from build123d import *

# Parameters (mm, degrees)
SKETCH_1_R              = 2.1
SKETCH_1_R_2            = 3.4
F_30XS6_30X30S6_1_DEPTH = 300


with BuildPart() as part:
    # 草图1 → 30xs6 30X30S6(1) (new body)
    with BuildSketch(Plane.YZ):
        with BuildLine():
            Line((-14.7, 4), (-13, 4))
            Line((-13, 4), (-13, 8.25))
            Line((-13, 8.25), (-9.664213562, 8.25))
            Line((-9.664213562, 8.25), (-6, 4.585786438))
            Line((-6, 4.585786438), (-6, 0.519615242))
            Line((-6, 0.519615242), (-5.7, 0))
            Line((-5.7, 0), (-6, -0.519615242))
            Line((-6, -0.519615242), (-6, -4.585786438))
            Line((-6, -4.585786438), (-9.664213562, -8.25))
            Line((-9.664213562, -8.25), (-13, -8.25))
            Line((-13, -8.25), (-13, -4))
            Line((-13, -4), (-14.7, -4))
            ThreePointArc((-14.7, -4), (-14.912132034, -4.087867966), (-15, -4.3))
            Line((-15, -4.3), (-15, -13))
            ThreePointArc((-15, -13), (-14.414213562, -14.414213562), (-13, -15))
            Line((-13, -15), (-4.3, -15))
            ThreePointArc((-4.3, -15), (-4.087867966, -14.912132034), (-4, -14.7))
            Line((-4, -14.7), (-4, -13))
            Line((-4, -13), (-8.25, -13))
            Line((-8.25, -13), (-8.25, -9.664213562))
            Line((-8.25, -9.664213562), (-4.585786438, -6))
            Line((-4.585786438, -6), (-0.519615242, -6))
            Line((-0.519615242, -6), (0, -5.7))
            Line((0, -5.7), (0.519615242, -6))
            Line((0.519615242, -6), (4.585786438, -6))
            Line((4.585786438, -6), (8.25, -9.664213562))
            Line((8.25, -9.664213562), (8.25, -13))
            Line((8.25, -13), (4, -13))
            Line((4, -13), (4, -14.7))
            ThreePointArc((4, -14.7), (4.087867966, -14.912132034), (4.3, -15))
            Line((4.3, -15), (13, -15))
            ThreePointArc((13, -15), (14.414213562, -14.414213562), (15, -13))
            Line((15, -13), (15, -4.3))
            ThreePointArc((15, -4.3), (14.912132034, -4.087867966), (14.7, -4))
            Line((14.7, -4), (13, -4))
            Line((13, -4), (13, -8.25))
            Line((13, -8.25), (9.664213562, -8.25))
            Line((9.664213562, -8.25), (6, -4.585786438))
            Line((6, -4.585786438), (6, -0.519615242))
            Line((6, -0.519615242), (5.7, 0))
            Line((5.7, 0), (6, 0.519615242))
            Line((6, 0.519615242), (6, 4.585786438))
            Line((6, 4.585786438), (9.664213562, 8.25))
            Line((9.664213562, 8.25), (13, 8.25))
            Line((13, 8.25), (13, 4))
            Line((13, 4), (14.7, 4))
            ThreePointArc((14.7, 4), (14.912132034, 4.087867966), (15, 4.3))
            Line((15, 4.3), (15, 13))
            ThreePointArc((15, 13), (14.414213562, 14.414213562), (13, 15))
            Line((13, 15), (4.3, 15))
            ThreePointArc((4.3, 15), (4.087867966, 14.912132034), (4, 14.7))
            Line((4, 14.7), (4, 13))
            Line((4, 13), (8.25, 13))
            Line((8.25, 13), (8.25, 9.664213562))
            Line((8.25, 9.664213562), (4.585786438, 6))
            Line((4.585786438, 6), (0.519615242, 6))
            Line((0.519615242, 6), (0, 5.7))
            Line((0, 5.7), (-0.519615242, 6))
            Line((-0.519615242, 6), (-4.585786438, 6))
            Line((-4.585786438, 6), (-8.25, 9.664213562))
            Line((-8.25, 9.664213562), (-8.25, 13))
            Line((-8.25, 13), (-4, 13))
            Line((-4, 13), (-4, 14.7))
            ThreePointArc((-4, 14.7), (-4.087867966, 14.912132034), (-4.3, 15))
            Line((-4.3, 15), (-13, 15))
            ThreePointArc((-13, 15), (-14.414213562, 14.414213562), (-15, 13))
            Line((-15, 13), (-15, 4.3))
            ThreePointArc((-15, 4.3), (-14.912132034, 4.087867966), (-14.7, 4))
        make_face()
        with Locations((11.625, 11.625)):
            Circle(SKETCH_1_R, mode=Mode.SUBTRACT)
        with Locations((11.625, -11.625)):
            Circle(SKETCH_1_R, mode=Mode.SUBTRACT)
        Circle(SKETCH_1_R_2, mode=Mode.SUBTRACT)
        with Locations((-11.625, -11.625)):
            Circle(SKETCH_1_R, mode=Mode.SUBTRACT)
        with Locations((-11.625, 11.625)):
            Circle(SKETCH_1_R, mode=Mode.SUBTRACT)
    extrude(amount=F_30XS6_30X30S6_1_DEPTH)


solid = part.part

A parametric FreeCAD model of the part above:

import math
import FreeCAD as App
import Part
import Sketcher
Q = App.Units.Quantity

doc = App.newDocument("Part")
body = doc.addObject("PartDesign::Body", "Body")

# Sketch on YZ plane
sketch1 = body.newObject("Sketcher::SketchObject", "Sketch")
sketch1.AttachmentSupport = (doc.getObject("YZ_Plane"), [""])
sketch1.MapMode = "FlatFace"
sketch1.addGeometry([
    Part.LineSegment(App.Vector(-14.7, 4, 0), App.Vector(-13, 4, 0)),  # 0
    Part.LineSegment(App.Vector(-13, 4, 0), App.Vector(-13, 8.25, 0)),  # 1
    Part.LineSegment(App.Vector(-13, 8.25, 0), App.Vector(-9.664214, 8.25, 0)),  # 2
    Part.LineSegment(App.Vector(-9.664214, 8.25, 0), App.Vector(-6, 4.585786, 0)),  # 3
    Part.LineSegment(App.Vector(-6, 4.585786, 0), App.Vector(-6, 0.519615, 0)),  # 4
    Part.LineSegment(App.Vector(-6, 0.519615, 0), App.Vector(-5.7, 0, 0)),  # 5
    Part.LineSegment(App.Vector(-5.7, 0, 0), App.Vector(-6, -0.519615, 0)),  # 6
    Part.LineSegment(App.Vector(-6, -0.519615, 0), App.Vector(-6, -4.585786, 0)),  # 7
    Part.LineSegment(App.Vector(-6, -4.585786, 0), App.Vector(-9.664214, -8.25, 0)),  # 8
    Part.LineSegment(App.Vector(-9.664214, -8.25, 0), App.Vector(-13, -8.25, 0)),  # 9
    Part.LineSegment(App.Vector(-13, -8.25, 0), App.Vector(-13, -4, 0)),  # 10
    Part.LineSegment(App.Vector(-13, -4, 0), App.Vector(-14.7, -4, 0)),  # 11
    Part.ArcOfCircle(Part.Circle(App.Vector(-14.7, -4.3, 0), App.Vector(0, 0, 1), 0.3), math.radians(90), math.radians(180)),  # 12
    Part.LineSegment(App.Vector(-15, -4.3, 0), App.Vector(-15, -13, 0)),  # 13
    Part.ArcOfCircle(Part.Circle(App.Vector(-13, -13, 0), App.Vector(0, 0, 1), 2), math.radians(-180), math.radians(-90)),  # 14
    Part.LineSegment(App.Vector(-13, -15, 0), App.Vector(-4.3, -15, 0)),  # 15
    Part.ArcOfCircle(Part.Circle(App.Vector(-4.3, -14.7, 0), App.Vector(0, 0, 1), 0.3), math.radians(-90), math.radians(0)),  # 16
    Part.LineSegment(App.Vector(-4, -14.7, 0), App.Vector(-4, -13, 0)),  # 17
    Part.LineSegment(App.Vector(-4, -13, 0), App.Vector(-8.25, -13, 0)),  # 18
    Part.LineSegment(App.Vector(-8.25, -13, 0), App.Vector(-8.25, -9.664214, 0)),  # 19
    Part.LineSegment(App.Vector(-8.25, -9.664214, 0), App.Vector(-4.585786, -6, 0)),  # 20
    Part.LineSegment(App.Vector(-4.585786, -6, 0), App.Vector(-0.519615, -6, 0)),  # 21
    Part.LineSegment(App.Vector(-0.519615, -6, 0), App.Vector(0, -5.7, 0)),  # 22
    Part.LineSegment(App.Vector(0, -5.7, 0), App.Vector(0.519615, -6, 0)),  # 23
    Part.LineSegment(App.Vector(0.519615, -6, 0), App.Vector(4.585786, -6, 0)),  # 24
    Part.LineSegment(App.Vector(4.585786, -6, 0), App.Vector(8.25, -9.664214, 0)),  # 25
    Part.LineSegment(App.Vector(8.25, -9.664214, 0), App.Vector(8.25, -13, 0)),  # 26
    Part.LineSegment(App.Vector(8.25, -13, 0), App.Vector(4, -13, 0)),  # 27
    Part.LineSegment(App.Vector(4, -13, 0), App.Vector(4, -14.7, 0)),  # 28
    Part.ArcOfCircle(Part.Circle(App.Vector(4.3, -14.7, 0), App.Vector(0, 0, 1), 0.3), math.radians(-180), math.radians(-90)),  # 29
    Part.LineSegment(App.Vector(4.3, -15, 0), App.Vector(13, -15, 0)),  # 30
    Part.ArcOfCircle(Part.Circle(App.Vector(13, -13, 0), App.Vector(0, 0, 1), 2), math.radians(-90), math.radians(0)),  # 31
    Part.LineSegment(App.Vector(15, -13, 0), App.Vector(15, -4.3, 0)),  # 32
    Part.ArcOfCircle(Part.Circle(App.Vector(14.7, -4.3, 0), App.Vector(0, 0, 1), 0.3), math.radians(0), math.radians(90)),  # 33
    Part.LineSegment(App.Vector(14.7, -4, 0), App.Vector(13, -4, 0)),  # 34
    Part.LineSegment(App.Vector(13, -4, 0), App.Vector(13, -8.25, 0)),  # 35
    Part.LineSegment(App.Vector(13, -8.25, 0), App.Vector(9.664214, -8.25, 0)),  # 36
    Part.LineSegment(App.Vector(9.664214, -8.25, 0), App.Vector(6, -4.585786, 0)),  # 37
    Part.LineSegment(App.Vector(6, -4.585786, 0), App.Vector(6, -0.519615, 0)),  # 38
    Part.LineSegment(App.Vector(6, -0.519615, 0), App.Vector(5.7, 0, 0)),  # 39
    Part.LineSegment(App.Vector(5.7, 0, 0), App.Vector(6, 0.519615, 0)),  # 40
    Part.LineSegment(App.Vector(6, 0.519615, 0), App.Vector(6, 4.585786, 0)),  # 41
    Part.LineSegment(App.Vector(6, 4.585786, 0), App.Vector(9.664214, 8.25, 0)),  # 42
    Part.LineSegment(App.Vector(9.664214, 8.25, 0), App.Vector(13, 8.25, 0)),  # 43
    Part.LineSegment(App.Vector(13, 8.25, 0), App.Vector(13, 4, 0)),  # 44
    Part.LineSegment(App.Vector(13, 4, 0), App.Vector(14.7, 4, 0)),  # 45
    Part.ArcOfCircle(Part.Circle(App.Vector(14.7, 4.3, 0), App.Vector(0, 0, 1), 0.3), math.radians(-90), math.radians(0)),  # 46
    Part.LineSegment(App.Vector(15, 4.3, 0), App.Vector(15, 13, 0)),  # 47
    Part.ArcOfCircle(Part.Circle(App.Vector(13, 13, 0), App.Vector(0, 0, 1), 2), math.radians(0), math.radians(90)),  # 48
    Part.LineSegment(App.Vector(13, 15, 0), App.Vector(4.3, 15, 0)),  # 49
    Part.ArcOfCircle(Part.Circle(App.Vector(4.3, 14.7, 0), App.Vector(0, 0, 1), 0.3), math.radians(90), math.radians(180)),  # 50
    Part.LineSegment(App.Vector(4, 14.7, 0), App.Vector(4, 13, 0)),  # 51
    Part.LineSegment(App.Vector(4, 13, 0), App.Vector(8.25, 13, 0)),  # 52
    Part.LineSegment(App.Vector(8.25, 13, 0), App.Vector(8.25, 9.664214, 0)),  # 53
    Part.LineSegment(App.Vector(8.25, 9.664214, 0), App.Vector(4.585786, 6, 0)),  # 54
    Part.LineSegment(App.Vector(4.585786, 6, 0), App.Vector(0.519615, 6, 0)),  # 55
    Part.LineSegment(App.Vector(0.519615, 6, 0), App.Vector(0, 5.7, 0)),  # 56
    Part.LineSegment(App.Vector(0, 5.7, 0), App.Vector(-0.519615, 6, 0)),  # 57
    Part.LineSegment(App.Vector(-0.519615, 6, 0), App.Vector(-4.585786, 6, 0)),  # 58
    Part.LineSegment(App.Vector(-4.585786, 6, 0), App.Vector(-8.25, 9.664214, 0)),  # 59
    Part.LineSegment(App.Vector(-8.25, 9.664214, 0), App.Vector(-8.25, 13, 0)),  # 60
    Part.LineSegment(App.Vector(-8.25, 13, 0), App.Vector(-4, 13, 0)),  # 61
    Part.LineSegment(App.Vector(-4, 13, 0), App.Vector(-4, 14.7, 0)),  # 62
    Part.ArcOfCircle(Part.Circle(App.Vector(-4.3, 14.7, 0), App.Vector(0, 0, 1), 0.3), math.radians(0), math.radians(90)),  # 63
    Part.LineSegment(App.Vector(-4.3, 15, 0), App.Vector(-13, 15, 0)),  # 64
    Part.ArcOfCircle(Part.Circle(App.Vector(-13, 13, 0), App.Vector(0, 0, 1), 2), math.radians(90), math.radians(180)),  # 65
    Part.LineSegment(App.Vector(-15, 13, 0), App.Vector(-15, 4.3, 0)),  # 66
    Part.ArcOfCircle(Part.Circle(App.Vector(-14.7, 4.3, 0), App.Vector(0, 0, 1), 0.3), math.radians(-180), math.radians(-90)),  # 67
    Part.Circle(App.Vector(-11.625, -11.625, 0), App.Vector(0, 0, 1), 2.1),  # 68
    Part.Circle(App.Vector(11.625, -11.625, 0), App.Vector(0, 0, 1), 2.1),  # 69
    Part.Circle(App.Vector(-11.625, 11.625, 0), App.Vector(0, 0, 1), 2.1),  # 70
    Part.Circle(App.Vector(0, 0, 0), App.Vector(0, 0, 1), 3.4),  # 71
    Part.Circle(App.Vector(11.625, 11.625, 0), App.Vector(0, 0, 1), 2.1),  # 72
], False)
sketch1.addConstraint([
    Sketcher.Constraint("Coincident", 0, 2, 1, 1),
    Sketcher.Constraint("Coincident", 1, 2, 2, 1),
    Sketcher.Constraint("Coincident", 2, 2, 3, 1),
    Sketcher.Constraint("Coincident", 3, 2, 4, 1),
    Sketcher.Constraint("Coincident", 4, 2, 5, 1),
    Sketcher.Constraint("Coincident", 5, 2, 6, 1),
    Sketcher.Constraint("Coincident", 6, 2, 7, 1),
    Sketcher.Constraint("Coincident", 7, 2, 8, 1),
    Sketcher.Constraint("Coincident", 8, 2, 9, 1),
    Sketcher.Constraint("Coincident", 9, 2, 10, 1),
    Sketcher.Constraint("Coincident", 10, 2, 11, 1),
    Sketcher.Constraint("Tangent", 11, 2, 12, 1),
    Sketcher.Constraint("Tangent", 12, 2, 13, 1),
    Sketcher.Constraint("Tangent", 13, 2, 14, 1),
    Sketcher.Constraint("Tangent", 14, 2, 15, 1),
    Sketcher.Constraint("Tangent", 15, 2, 16, 1),
    Sketcher.Constraint("Tangent", 16, 2, 17, 1),
    Sketcher.Constraint("Coincident", 17, 2, 18, 1),
    Sketcher.Constraint("Coincident", 18, 2, 19, 1),
    Sketcher.Constraint("Coincident", 19, 2, 20, 1),
    Sketcher.Constraint("Coincident", 20, 2, 21, 1),
    Sketcher.Constraint("Coincident", 21, 2, 22, 1),
    Sketcher.Constraint("Coincident", 22, 2, 23, 1),
    Sketcher.Constraint("Coincident", 23, 2, 24, 1),
    Sketcher.Constraint("Coincident", 24, 2, 25, 1),
    Sketcher.Constraint("Coincident", 25, 2, 26, 1),
    Sketcher.Constraint("Coincident", 26, 2, 27, 1),
    Sketcher.Constraint("Coincident", 27, 2, 28, 1),
    Sketcher.Constraint("Tangent", 28, 2, 29, 1),
    Sketcher.Constraint("Tangent", 29, 2, 30, 1),
    Sketcher.Constraint("Tangent", 30, 2, 31, 1),
    Sketcher.Constraint("Tangent", 31, 2, 32, 1),
    Sketcher.Constraint("Tangent", 32, 2, 33, 1),
    Sketcher.Constraint("Tangent", 33, 2, 34, 1),
    Sketcher.Constraint("Coincident", 34, 2, 35, 1),
    Sketcher.Constraint("Coincident", 35, 2, 36, 1),
    Sketcher.Constraint("Coincident", 36, 2, 37, 1),
    Sketcher.Constraint("Coincident", 37, 2, 38, 1),
    Sketcher.Constraint("Coincident", 38, 2, 39, 1),
    Sketcher.Constraint("Coincident", 39, 2, 40, 1),
    Sketcher.Constraint("Coincident", 40, 2, 41, 1),
    Sketcher.Constraint("Coincident", 41, 2, 42, 1),
    Sketcher.Constraint("Coincident", 42, 2, 43, 1),
    Sketcher.Constraint("Coincident", 43, 2, 44, 1),
    Sketcher.Constraint("Coincident", 44, 2, 45, 1),
    Sketcher.Constraint("Tangent", 45, 2, 46, 1),
    Sketcher.Constraint("Tangent", 46, 2, 47, 1),
    Sketcher.Constraint("Tangent", 47, 2, 48, 1),
    Sketcher.Constraint("Tangent", 48, 2, 49, 1),
    Sketcher.Constraint("Tangent", 49, 2, 50, 1),
    Sketcher.Constraint("Tangent", 50, 2, 51, 1),
    Sketcher.Constraint("Coincident", 51, 2, 52, 1),
    Sketcher.Constraint("Coincident", 52, 2, 53, 1),
    Sketcher.Constraint("Coincident", 53, 2, 54, 1),
    Sketcher.Constraint("Coincident", 54, 2, 55, 1),
    Sketcher.Constraint("Coincident", 55, 2, 56, 1),
    Sketcher.Constraint("Coincident", 56, 2, 57, 1),
    Sketcher.Constraint("Coincident", 57, 2, 58, 1),
    Sketcher.Constraint("Coincident", 58, 2, 59, 1),
    Sketcher.Constraint("Coincident", 59, 2, 60, 1),
    Sketcher.Constraint("Coincident", 60, 2, 61, 1),
    Sketcher.Constraint("Coincident", 61, 2, 62, 1),
    Sketcher.Constraint("Tangent", 62, 2, 63, 1),
    Sketcher.Constraint("Tangent", 63, 2, 64, 1),
    Sketcher.Constraint("Tangent", 64, 2, 65, 1),
    Sketcher.Constraint("Tangent", 65, 2, 66, 1),
    Sketcher.Constraint("Tangent", 66, 2, 67, 1),
    Sketcher.Constraint("Tangent", 67, 2, 0, 1),
    Sketcher.Constraint("Horizontal", 0),
    Sketcher.Constraint("Vertical", 1),
    Sketcher.Constraint("Horizontal", 2),
    Sketcher.Constraint("Vertical", 4),
    Sketcher.Constraint("Vertical", 7),
    Sketcher.Constraint("Horizontal", 9),
    Sketcher.Constraint("Vertical", 10),
    Sketcher.Constraint("Horizontal", 11),
    Sketcher.Constraint("Vertical", 13),
    Sketcher.Constraint("Horizontal", 15),
    Sketcher.Constraint("Vertical", 17),
    Sketcher.Constraint("Horizontal", 18),
    Sketcher.Constraint("Vertical", 19),
    Sketcher.Constraint("Horizontal", 21),
    Sketcher.Constraint("Horizontal", 24),
    Sketcher.Constraint("Vertical", 26),
    Sketcher.Constraint("Horizontal", 27),
    Sketcher.Constraint("Vertical", 28),
    Sketcher.Constraint("Horizontal", 30),
    Sketcher.Constraint("Vertical", 32),
    Sketcher.Constraint("Horizontal", 34),
    Sketcher.Constraint("Vertical", 35),
    Sketcher.Constraint("Horizontal", 36),
    Sketcher.Constraint("Vertical", 38),
    Sketcher.Constraint("Vertical", 41),
    Sketcher.Constraint("Horizontal", 43),
    Sketcher.Constraint("Vertical", 44),
    Sketcher.Constraint("Horizontal", 45),
    Sketcher.Constraint("Vertical", 47),
    Sketcher.Constraint("Horizontal", 49),
    Sketcher.Constraint("Vertical", 51),
    Sketcher.Constraint("Horizontal", 52),
    Sketcher.Constraint("Vertical", 53),
    Sketcher.Constraint("Horizontal", 55),
    Sketcher.Constraint("Horizontal", 58),
    Sketcher.Constraint("Vertical", 60),
    Sketcher.Constraint("Horizontal", 61),
    Sketcher.Constraint("Vertical", 62),
    Sketcher.Constraint("Horizontal", 64),
    Sketcher.Constraint("Vertical", 66),
    Sketcher.Constraint("Coincident", 71, 3, -1, 1),
    Sketcher.Constraint("Equal", 12, 16),
    Sketcher.Constraint("Equal", 16, 29),
    Sketcher.Constraint("Equal", 14, 31),
    Sketcher.Constraint("Equal", 29, 33),
    Sketcher.Constraint("Equal", 33, 46),
    Sketcher.Constraint("Equal", 31, 48),
    Sketcher.Constraint("Equal", 46, 50),
    Sketcher.Constraint("Equal", 50, 63),
    Sketcher.Constraint("Equal", 48, 65),
    Sketcher.Constraint("Equal", 63, 67),
    Sketcher.Constraint("Equal", 68, 69),
    Sketcher.Constraint("Equal", 69, 70),
    Sketcher.Constraint("Equal", 70, 72),
    Sketcher.Constraint("Symmetric", 12, 3, 46, 3, -1, 1),
    Sketcher.Constraint("Symmetric", 16, 3, 50, 3, -1, 1),
    Sketcher.Constraint("Symmetric", 29, 3, 63, 3, -1, 1),
    Sketcher.Constraint("Symmetric", 33, 3, 67, 3, -1, 1),
    Sketcher.Constraint("Symmetric", 69, 3, 70, 3, -1, 1),
    Sketcher.Constraint("Symmetric", 68, 3, 72, 3, -1, 1),
    Sketcher.Constraint("Symmetric", 1, 2, 35, 2, -1, 1),
    Sketcher.Constraint("Symmetric", 3, 2, 37, 2, -1, 1),
    Sketcher.Constraint("Symmetric", 5, 2, 39, 2, -1, 1),
    Sketcher.Constraint("Symmetric", 6, 2, 40, 2, -1, 1),
    Sketcher.Constraint("Symmetric", 8, 2, 42, 2, -1, 1),
    Sketcher.Constraint("Symmetric", 18, 2, 52, 2, -1, 1),
    Sketcher.Constraint("Symmetric", 20, 2, 54, 2, -1, 1),
    Sketcher.Constraint("Symmetric", 22, 2, 56, 2, -1, 1),
    Sketcher.Constraint("Symmetric", 23, 2, 57, 2, -1, 1),
    Sketcher.Constraint("Symmetric", 25, 2, 59, 2, -1, 1),
    Sketcher.Constraint("Symmetric", 16, 3, 29, 3, -2),
    Sketcher.Constraint("Symmetric", 12, 3, 33, 3, -2),
    Sketcher.Constraint("Symmetric", 68, 3, 69, 3, -2),
    Sketcher.Constraint("Symmetric", 21, 2, 23, 2, -2),
    Sketcher.Constraint("Symmetric", 19, 2, 25, 2, -2),
    Sketcher.Constraint("Symmetric", 9, 2, 35, 2, -2),
    Sketcher.Constraint("Symmetric", 7, 2, 37, 2, -2),
    Sketcher.Constraint("PointOnObject", 5, 2, -1),
    Sketcher.Constraint("PointOnObject", 22, 2, -2),
    Sketcher.Constraint("Perpendicular", 3, 8),
    Sketcher.Constraint("Parallel", 8, 20),
    Sketcher.Constraint("Perpendicular", 5, 22),
    Sketcher.Constraint("Perpendicular", 6, 23),
    Sketcher.Constraint("Perpendicular", 20, 25),
    Sketcher.Constraint("Parallel", 25, 37),
    Sketcher.Constraint("Perpendicular", 22, 39),
    Sketcher.Constraint("Perpendicular", 37, 42),
    Sketcher.Constraint("Parallel", 42, 54),
    Sketcher.Constraint("Perpendicular", 39, 56),
    Sketcher.Constraint("Perpendicular", 54, 59),
    Sketcher.Constraint("Horizontal", 13, 2, 17, 2),
    Sketcher.Constraint("Horizontal", 18, 2, 26, 2),
    Sketcher.Constraint("Horizontal", 52, 2, 60, 2),
    Sketcher.Constraint("Vertical", 65, 3, 0, 2),
    Sketcher.Constraint("Vertical", 2, 2, 8, 2),
    Sketcher.Constraint("Vertical", 35, 2, 43, 2),
    Sketcher.Constraint("Equal", 61, 1),
    Sketcher.Constraint("Equal", 58, 4),
    Sketcher.Constraint("Equal", 64, 13),
    Sketcher.Constraint("Equal", 43, 19),
    Sketcher.Constraint("Equal", 8, 20),
    Sketcher.Constraint("Equal", 6, 22),
    Sketcher.Constraint("Radius", 14, Q("2 mm")),
    Sketcher.Constraint("Diameter", 68, Q("4.2 mm")),
    Sketcher.Constraint("Diameter", 71, Q("6.8 mm")),
    Sketcher.Constraint("Radius", 12, Q("0.3 mm")),
    Sketcher.Constraint("Angle", 5, Q("-60 deg")),
    Sketcher.Constraint("DistanceX", 15, 1, 15, 2, Q("8.7 mm")),
    Sketcher.Constraint("DistanceX", 14, 3, -1, 1, Q("13 mm")),
    Sketcher.Constraint("DistanceX", 3, 2, -1, 1, Q("6 mm")),
    Sketcher.Constraint("Distance", 5, Q("0.6 mm")),
    Sketcher.Constraint("DistanceX", 18, 2, 18, 1, Q("4.25 mm")),
    Sketcher.Constraint("DistanceX", 68, 3, -1, 1, Q("11.625 mm")),
    Sketcher.Constraint("DistanceY", 68, 3, -1, 1, Q("11.625 mm")),
    Sketcher.Constraint("DistanceX", 21, 1, 21, 2, Q("4.066171 mm")),
])
pad1 = body.newObject("PartDesign::Pad", "Pad")
pad1.Profile = sketch1
pad1.Length = 300

doc.recompute()
